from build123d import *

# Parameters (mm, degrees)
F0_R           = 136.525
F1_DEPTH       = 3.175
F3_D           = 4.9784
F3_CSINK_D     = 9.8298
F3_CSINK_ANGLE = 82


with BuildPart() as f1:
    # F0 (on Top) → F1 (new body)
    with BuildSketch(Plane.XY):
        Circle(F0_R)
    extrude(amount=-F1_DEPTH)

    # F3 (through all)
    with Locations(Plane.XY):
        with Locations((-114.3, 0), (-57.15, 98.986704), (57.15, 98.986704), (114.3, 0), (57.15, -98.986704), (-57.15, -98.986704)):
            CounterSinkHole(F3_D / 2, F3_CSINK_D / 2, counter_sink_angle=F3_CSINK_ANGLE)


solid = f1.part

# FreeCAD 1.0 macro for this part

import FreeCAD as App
import Part
import Sketcher
Q = App.Units.Quantity

doc = App.newDocument("Part")
body = doc.addObject("PartDesign::Body", "Body")

# Sketch on XY plane
sketch1 = doc.addObject("Sketcher::SketchObject", "Sketch")
body.addObject(sketch1)
sketch1.AttachmentSupport = (doc.XY_Plane, [""])
sketch1.MapMode = "FlatFace"
sketch1.addGeometry(Part.Circle(App.Vector(0, 0, 0), App.Vector(0, 0, 1), 137), False)
sketch1.addConstraint(Sketcher.Constraint("Coincident", 0, 3, -1, 1))
sketch1.addConstraint(Sketcher.Constraint("Diameter", 0, Q("10.75 in")))
pad1 = doc.addObject("PartDesign::Pad", "Pad")
body.addObject(pad1)
pad1.Profile = sketch1
pad1.Length = Q("0.125 in")
pad1.Reversed = True

# Sketch on XY plane
sketch2 = doc.addObject("Sketcher::SketchObject", "Sketch001")
body.addObject(sketch2)
sketch2.AttachmentSupport = (doc.XY_Plane, [""])
sketch2.MapMode = "FlatFace"
sketch2.addGeometry(Part.Circle(App.Vector(-114.3, 0, 0), App.Vector(0, 0, 1), 2.5), False)
sketch2.addGeometry(Part.Circle(App.Vector(-57.1, 99, 0), App.Vector(0, 0, 1), 2.5), False)
sketch2.addGeometry(Part.Circle(App.Vector(57.1, 99, 0), App.Vector(0, 0, 1), 2.5), False)
sketch2.addGeometry(Part.Circle(App.Vector(114.3, 0, 0), App.Vector(0, 0, 1), 2.5), False)
sketch2.addGeometry(Part.Circle(App.Vector(57.1, -99, 0), App.Vector(0, 0, 1), 2.5), False)
sketch2.addGeometry(Part.Circle(App.Vector(-57.1, -99, 0), App.Vector(0, 0, 1), 2.5), False)
sketch2.addConstraint(Sketcher.Constraint("Equal", 0, 1))
sketch2.addConstraint(Sketcher.Constraint("Equal", 1, 2))
sketch2.addConstraint(Sketcher.Constraint("Equal", 2, 3))
sketch2.addConstraint(Sketcher.Constraint("Equal", 3, 4))
sketch2.addConstraint(Sketcher.Constraint("Equal", 4, 5))
sketch2.addConstraint(Sketcher.Constraint("Symmetric", 0, 3, 3, 3, -1, 1))
sketch2.addConstraint(Sketcher.Constraint("Symmetric", 1, 3, 4, 3, -1, 1))
sketch2.addConstraint(Sketcher.Constraint("Symmetric", 2, 3, 5, 3, -1, 1))
sketch2.addConstraint(Sketcher.Constraint("Symmetric", 1, 3, 2, 3, -2))
sketch2.addConstraint(Sketcher.Constraint("PointOnObject", 0, 3, -1))
sketch2.addConstraint(Sketcher.Constraint("Diameter", 0, Q("0.196 in")))
sketch2.addConstraint(Sketcher.Constraint("DistanceX", 0, 3, 3, 3, Q("9 in")))
sketch2.addConstraint(Sketcher.Constraint("DistanceX", 1, 3, 2, 3, Q("4.5 in")))
sketch2.addConstraint(Sketcher.Constraint("DistanceY", 4, 3, 2, 3, Q("197.973408 mm")))
doc.recompute()
hole = doc.addObject("PartDesign::Hole", "Hole")
body.addObject(hole)
hole.Profile = sketch2
hole.ThreadType = "None"
hole.Diameter = Q("0.196 in")
hole.DepthType = "ThroughAll"
hole.HoleCutType = "Countersink"
hole.HoleCutDiameter = Q("0.387 in")
hole.HoleCutCountersinkAngle = 82

doc.recompute()
